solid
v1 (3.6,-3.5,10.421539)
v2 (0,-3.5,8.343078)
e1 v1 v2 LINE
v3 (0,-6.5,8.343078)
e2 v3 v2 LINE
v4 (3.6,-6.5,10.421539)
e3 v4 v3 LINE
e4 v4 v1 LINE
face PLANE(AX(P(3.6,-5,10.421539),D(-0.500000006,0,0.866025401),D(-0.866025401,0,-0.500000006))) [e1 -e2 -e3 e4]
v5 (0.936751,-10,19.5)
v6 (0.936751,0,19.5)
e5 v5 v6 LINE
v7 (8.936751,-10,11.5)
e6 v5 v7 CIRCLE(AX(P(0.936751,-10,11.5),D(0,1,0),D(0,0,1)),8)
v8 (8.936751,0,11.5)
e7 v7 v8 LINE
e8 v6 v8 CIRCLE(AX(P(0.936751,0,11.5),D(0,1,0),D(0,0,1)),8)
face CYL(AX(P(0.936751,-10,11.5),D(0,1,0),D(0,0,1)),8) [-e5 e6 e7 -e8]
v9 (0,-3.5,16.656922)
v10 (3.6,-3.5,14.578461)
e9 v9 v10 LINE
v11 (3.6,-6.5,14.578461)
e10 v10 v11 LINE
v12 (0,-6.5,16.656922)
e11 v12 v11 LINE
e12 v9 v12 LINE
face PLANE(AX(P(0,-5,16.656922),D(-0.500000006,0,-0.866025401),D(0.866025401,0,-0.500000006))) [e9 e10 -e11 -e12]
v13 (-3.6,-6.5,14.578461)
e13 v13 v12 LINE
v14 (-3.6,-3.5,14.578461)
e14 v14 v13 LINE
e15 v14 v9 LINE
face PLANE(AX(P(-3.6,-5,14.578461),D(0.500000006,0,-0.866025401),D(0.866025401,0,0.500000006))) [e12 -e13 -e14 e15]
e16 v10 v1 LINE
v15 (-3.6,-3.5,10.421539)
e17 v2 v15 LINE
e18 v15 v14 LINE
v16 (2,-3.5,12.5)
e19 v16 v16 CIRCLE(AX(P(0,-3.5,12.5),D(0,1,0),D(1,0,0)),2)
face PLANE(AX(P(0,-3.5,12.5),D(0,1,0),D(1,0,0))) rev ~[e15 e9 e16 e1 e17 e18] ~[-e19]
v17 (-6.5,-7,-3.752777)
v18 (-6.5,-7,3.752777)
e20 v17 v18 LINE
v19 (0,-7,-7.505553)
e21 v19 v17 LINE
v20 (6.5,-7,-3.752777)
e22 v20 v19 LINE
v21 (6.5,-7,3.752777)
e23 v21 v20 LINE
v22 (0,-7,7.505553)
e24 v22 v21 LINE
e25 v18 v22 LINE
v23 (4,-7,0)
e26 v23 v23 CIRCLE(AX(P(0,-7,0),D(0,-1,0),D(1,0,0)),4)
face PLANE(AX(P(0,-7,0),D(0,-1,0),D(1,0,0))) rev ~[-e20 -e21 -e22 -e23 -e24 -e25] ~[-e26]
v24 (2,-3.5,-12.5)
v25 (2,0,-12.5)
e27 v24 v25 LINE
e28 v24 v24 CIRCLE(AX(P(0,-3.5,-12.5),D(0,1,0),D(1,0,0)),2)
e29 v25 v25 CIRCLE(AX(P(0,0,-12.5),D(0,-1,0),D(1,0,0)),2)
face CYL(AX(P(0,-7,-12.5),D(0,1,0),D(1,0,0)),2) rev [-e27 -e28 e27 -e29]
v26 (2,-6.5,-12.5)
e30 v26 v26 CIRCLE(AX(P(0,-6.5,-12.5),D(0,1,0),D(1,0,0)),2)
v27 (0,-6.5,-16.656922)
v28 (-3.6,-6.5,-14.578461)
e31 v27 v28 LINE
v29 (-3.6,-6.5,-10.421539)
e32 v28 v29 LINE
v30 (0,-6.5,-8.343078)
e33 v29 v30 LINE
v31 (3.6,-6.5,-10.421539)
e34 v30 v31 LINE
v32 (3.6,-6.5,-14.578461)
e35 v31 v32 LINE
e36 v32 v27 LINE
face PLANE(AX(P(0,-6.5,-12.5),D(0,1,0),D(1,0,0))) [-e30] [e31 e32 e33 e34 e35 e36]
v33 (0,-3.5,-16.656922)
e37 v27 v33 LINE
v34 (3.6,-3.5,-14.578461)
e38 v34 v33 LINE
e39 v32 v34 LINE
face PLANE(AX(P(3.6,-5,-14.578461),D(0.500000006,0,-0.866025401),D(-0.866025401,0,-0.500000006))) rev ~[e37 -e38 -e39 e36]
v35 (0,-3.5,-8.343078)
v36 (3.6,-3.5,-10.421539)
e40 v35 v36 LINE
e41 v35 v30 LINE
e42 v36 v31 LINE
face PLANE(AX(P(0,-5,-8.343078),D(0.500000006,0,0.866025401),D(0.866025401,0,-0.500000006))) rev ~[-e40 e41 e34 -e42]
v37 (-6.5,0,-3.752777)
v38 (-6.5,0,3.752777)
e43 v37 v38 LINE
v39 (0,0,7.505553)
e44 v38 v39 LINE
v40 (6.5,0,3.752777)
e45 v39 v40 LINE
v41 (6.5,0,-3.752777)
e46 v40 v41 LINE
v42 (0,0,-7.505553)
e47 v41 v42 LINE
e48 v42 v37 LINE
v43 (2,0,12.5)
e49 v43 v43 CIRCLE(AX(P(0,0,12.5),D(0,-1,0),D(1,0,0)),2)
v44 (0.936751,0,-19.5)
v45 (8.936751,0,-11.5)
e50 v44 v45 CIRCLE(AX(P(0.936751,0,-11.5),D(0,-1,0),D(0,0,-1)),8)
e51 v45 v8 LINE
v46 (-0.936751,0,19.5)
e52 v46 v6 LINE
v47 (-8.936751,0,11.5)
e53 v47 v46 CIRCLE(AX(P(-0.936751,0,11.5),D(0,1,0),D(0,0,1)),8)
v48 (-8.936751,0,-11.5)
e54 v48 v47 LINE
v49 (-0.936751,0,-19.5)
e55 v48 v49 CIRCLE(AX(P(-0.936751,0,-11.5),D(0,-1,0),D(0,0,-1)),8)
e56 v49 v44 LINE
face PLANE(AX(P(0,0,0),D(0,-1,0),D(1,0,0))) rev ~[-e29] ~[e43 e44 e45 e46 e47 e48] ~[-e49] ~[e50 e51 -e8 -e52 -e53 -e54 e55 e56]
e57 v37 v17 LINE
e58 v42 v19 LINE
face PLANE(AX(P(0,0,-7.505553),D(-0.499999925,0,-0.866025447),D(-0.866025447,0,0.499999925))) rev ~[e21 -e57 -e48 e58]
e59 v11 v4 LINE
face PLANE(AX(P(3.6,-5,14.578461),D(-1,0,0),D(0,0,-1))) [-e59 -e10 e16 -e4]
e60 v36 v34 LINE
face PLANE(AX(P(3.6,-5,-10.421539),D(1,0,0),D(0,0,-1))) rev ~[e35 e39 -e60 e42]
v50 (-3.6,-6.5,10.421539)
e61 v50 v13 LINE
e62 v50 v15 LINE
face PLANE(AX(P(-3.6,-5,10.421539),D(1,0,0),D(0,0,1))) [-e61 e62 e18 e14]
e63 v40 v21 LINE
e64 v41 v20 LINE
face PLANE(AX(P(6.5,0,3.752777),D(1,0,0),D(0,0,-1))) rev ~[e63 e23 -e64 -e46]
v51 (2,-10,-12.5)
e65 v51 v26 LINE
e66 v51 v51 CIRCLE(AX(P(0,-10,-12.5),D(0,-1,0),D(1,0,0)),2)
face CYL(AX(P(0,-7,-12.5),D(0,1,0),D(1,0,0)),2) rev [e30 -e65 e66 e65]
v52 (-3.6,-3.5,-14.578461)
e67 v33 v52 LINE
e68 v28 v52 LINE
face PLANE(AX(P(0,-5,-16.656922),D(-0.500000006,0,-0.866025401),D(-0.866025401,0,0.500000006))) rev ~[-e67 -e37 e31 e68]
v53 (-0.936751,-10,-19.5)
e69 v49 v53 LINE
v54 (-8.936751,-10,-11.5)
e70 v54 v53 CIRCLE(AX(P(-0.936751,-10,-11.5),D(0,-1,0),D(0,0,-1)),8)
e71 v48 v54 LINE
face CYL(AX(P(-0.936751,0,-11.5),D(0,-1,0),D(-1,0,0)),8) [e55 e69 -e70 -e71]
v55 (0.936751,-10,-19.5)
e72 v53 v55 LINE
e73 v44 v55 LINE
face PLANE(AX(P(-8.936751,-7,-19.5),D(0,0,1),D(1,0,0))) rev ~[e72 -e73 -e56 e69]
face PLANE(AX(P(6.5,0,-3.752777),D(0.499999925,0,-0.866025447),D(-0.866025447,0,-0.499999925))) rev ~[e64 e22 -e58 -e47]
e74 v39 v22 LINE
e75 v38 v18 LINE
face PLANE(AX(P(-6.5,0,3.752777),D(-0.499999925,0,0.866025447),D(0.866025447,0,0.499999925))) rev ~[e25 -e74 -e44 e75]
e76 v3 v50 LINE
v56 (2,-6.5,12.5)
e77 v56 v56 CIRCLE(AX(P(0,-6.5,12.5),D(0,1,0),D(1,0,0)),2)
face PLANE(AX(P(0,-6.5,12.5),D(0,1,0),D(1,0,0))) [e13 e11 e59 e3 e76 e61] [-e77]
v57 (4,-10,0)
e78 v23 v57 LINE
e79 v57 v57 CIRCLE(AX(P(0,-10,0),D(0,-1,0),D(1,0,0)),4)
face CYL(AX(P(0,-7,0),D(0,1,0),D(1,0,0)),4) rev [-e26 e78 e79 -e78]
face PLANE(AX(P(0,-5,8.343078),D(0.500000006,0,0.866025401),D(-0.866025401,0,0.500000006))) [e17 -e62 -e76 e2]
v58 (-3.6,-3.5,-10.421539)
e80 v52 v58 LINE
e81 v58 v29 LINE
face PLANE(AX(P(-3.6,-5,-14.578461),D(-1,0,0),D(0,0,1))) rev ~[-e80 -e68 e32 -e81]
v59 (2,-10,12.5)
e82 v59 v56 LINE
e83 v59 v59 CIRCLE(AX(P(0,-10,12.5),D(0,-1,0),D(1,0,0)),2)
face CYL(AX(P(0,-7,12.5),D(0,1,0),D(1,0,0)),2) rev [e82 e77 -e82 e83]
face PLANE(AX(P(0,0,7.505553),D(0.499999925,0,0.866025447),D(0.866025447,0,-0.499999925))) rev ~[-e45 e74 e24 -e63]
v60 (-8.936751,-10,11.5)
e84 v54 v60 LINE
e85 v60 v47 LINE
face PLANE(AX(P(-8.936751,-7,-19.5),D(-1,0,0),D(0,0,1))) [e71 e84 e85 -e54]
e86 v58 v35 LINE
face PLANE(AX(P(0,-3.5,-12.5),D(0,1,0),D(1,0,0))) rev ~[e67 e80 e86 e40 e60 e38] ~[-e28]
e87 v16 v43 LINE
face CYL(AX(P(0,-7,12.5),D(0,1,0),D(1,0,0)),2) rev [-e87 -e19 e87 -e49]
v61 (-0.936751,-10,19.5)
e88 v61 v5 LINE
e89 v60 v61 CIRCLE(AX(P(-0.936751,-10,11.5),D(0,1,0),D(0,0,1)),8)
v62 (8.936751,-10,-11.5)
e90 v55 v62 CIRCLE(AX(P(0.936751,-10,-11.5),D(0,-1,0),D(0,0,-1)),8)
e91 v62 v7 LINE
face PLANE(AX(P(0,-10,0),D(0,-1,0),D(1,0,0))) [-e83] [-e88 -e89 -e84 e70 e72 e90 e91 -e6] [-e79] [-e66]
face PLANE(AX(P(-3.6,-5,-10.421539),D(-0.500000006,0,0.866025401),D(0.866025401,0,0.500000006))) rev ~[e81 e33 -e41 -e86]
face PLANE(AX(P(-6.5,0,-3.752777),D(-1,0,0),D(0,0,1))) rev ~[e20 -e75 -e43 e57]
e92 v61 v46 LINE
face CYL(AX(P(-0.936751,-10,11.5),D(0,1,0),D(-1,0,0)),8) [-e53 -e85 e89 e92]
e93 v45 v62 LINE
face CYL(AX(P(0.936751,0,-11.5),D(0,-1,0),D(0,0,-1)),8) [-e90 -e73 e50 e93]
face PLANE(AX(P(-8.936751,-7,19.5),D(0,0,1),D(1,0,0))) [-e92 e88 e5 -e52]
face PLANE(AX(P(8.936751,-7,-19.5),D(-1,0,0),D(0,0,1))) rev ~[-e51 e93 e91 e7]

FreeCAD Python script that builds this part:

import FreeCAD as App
import Part
import Sketcher
from FreeCAD import Vector
Q = App.Units.Quantity


def edges_at(feature, points):
    """Names of the edges that pass closest to the given points."""
    edges = feature.Shape.Edges
    near = lambda p: min(range(len(edges)), key=lambda i: edges[i].distToShape(Part.Vertex(*p))[0])
    return sorted({f"Edge{near(p) + 1}" for p in points})

doc = App.newDocument("Part")
body = doc.addObject("PartDesign::Body", "Body")

# Sketch on XZ plane
sketch1 = doc.addObject("Sketcher::SketchObject", "Sketch")
body.addObject(sketch1)
sketch1.AttachmentSupport = (doc.XZ_Plane, [""])
sketch1.MapMode = "FlatFace"
sketch1.addGeometry(Part.LineSegment(Vector(-8.9, 19.5, 0), Vector(-8.9, -19.5, 0)), False)
sketch1.addGeometry(Part.LineSegment(Vector(-8.9, -19.5, 0), Vector(8.9, -19.5, 0)), False)
sketch1.addGeometry(Part.LineSegment(Vector(8.9, -19.5, 0), Vector(8.9, 19.5, 0)), False)
sketch1.addGeometry(Part.LineSegment(Vector(8.9, 19.5, 0), Vector(-8.9, 19.5, 0)), False)
sketch1.addGeometry(Part.Circle(Vector(0, -12.5, 0), Vector(0, 0, 1), 2), False)
sketch1.addGeometry(Part.LineSegment(Vector(-6.5, 3.8, 0), Vector(0, 7.5, 0)), False)
sketch1.addGeometry(Part.LineSegment(Vector(0, 7.5, 0), Vector(6.5, 3.8, 0)), False)
sketch1.addGeometry(Part.LineSegment(Vector(6.5, 3.8, 0), Vector(6.5, -3.8, 0)), False)
sketch1.addGeometry(Part.LineSegment(Vector(6.5, -3.8, 0), Vector(0, -7.5, 0)), False)
sketch1.addGeometry(Part.LineSegment(Vector(0, -7.5, 0), Vector(-6.5, -3.8, 0)), False)
sketch1.addGeometry(Part.LineSegment(Vector(-6.5, -3.8, 0), Vector(-6.5, 3.8, 0)), False)
sketch1.addGeometry(Part.Circle(Vector(0, 12.5, 0), Vector(0, 0, 1), 2), False)
sketch1.addConstraint(Sketcher.Constraint("Coincident", 0, 2, 1, 1))
sketch1.addConstraint(Sketcher.Constraint("Coincident", 1, 2, 2, 1))
sketch1.addConstraint(Sketcher.Constraint("Coincident", 2, 2, 3, 1))
sketch1.addConstraint(Sketcher.Constraint("Coincident", 3, 2, 0, 1))
sketch1.addConstraint(Sketcher.Constraint("Coincident", 5, 2, 6, 1))
sketch1.addConstraint(Sketcher.Constraint("Coincident", 6, 2, 7, 1))
sketch1.addConstraint(Sketcher.Constraint("Coincident", 7, 2, 8, 1))
sketch1.addConstraint(Sketcher.Constraint("Coincident", 8, 2, 9, 1))
sketch1.addConstraint(Sketcher.Constraint("Coincident", 9, 2, 10, 1))
sketch1.addConstraint(Sketcher.Constraint("Coincident", 10, 2, 5, 1))
sketch1.addConstraint(Sketcher.Constraint("Vertical", 0))
sketch1.addConstraint(Sketcher.Constraint("Horizontal", 1))
sketch1.addConstraint(Sketcher.Constraint("Vertical", 2))
sketch1.addConstraint(Sketcher.Constraint("Horizontal", 3))
sketch1.addConstraint(Sketcher.Constraint("Vertical", 7))
sketch1.addConstraint(Sketcher.Constraint("Vertical", 10))
sketch1.addConstraint(Sketcher.Constraint("Equal", 4, 11))
sketch1.addConstraint(Sketcher.Constraint("Symmetric", 4, 3, 11, 3, -1, 1))
sketch1.addConstraint(Sketcher.Constraint("Symmetric", 0, 2, 2, 2, -1, 1))
sketch1.addConstraint(Sketcher.Constraint("Symmetric", 5, 2, 8, 2, -1, 1))
sketch1.addConstraint(Sketcher.Constraint("Symmetric", 6, 2, 9, 2, -1, 1))
sketch1.addConstraint(Sketcher.Constraint("PointOnObject", 4, 3, -2))
sketch1.addConstraint(Sketcher.Constraint("PointOnObject", 5, 2, -2))
sketch1.addConstraint(Sketcher.Constraint("Parallel", 5, 8))
sketch1.addConstraint(Sketcher.Constraint("Horizontal", 7, 2, 9, 2))
sketch1.addConstraint(Sketcher.Constraint("Diameter", 4, Q("4 mm")))
sketch1.addConstraint(Sketcher.Constraint("DistanceY", 0, 2, 0, 1, Q("39 mm")))
sketch1.addConstraint(Sketcher.Constraint("Angle", 5, Q("29.999995 deg")))
sketch1.addConstraint(Sketcher.Constraint("DistanceY", 4, 3, 11, 3, Q("25 mm")))
sketch1.addConstraint(Sketcher.Constraint("DistanceX", 9, 2, 7, 2, Q("13 mm")))
sketch1.addConstraint(Sketcher.Constraint("DistanceX", 1, 1, 1, 2, Q("17.873502 mm")))
sketch1.addConstraint(Sketcher.Constraint("DistanceY", 7, 2, 7, 1, Q("7.505554 mm")))
pad1 = doc.addObject("PartDesign::Pad", "Pad")
body.addObject(pad1)
pad1.Profile = sketch1
pad1.Length = 7

# Sketch on XZ plane
sketch2 = doc.addObject("Sketcher::SketchObject", "Sketch001")
body.addObject(sketch2)
sketch2.AttachmentSupport = (doc.XZ_Plane, [""])
sketch2.MapMode = "FlatFace"
sketch2.AttachmentOffset = App.Placement(Vector(0, 0, 7), App.Rotation())
sketch2.addGeometry(Part.LineSegment(Vector(-8.9, 19.5, 0), Vector(-8.9, -19.5, 0)), False)
sketch2.addGeometry(Part.LineSegment(Vector(-8.9, -19.5, 0), Vector(8.9, -19.5, 0)), False)
sketch2.addGeometry(Part.LineSegment(Vector(8.9, -19.5, 0), Vector(8.9, 19.5, 0)), False)
sketch2.addGeometry(Part.LineSegment(Vector(8.9, 19.5, 0), Vector(-8.9, 19.5, 0)), False)
sketch2.addGeometry(Part.Circle(Vector(0, -12.5, 0), Vector(0, 0, 1), 2), False)
sketch2.addGeometry(Part.Circle(Vector(0, 0, 0), Vector(0, 0, 1), 4), False)
sketch2.addGeometry(Part.Circle(Vector(0, 12.5, 0), Vector(0, 0, 1), 2), False)
sketch2.addConstraint(Sketcher.Constraint("Coincident", 0, 2, 1, 1))
sketch2.addConstraint(Sketcher.Constraint("Coincident", 1, 2, 2, 1))
sketch2.addConstraint(Sketcher.Constraint("Coincident", 2, 2, 3, 1))
sketch2.addConstraint(Sketcher.Constraint("Coincident", 3, 2, 0, 1))
sketch2.addConstraint(Sketcher.Constraint("Vertical", 0))
sketch2.addConstraint(Sketcher.Constraint("Horizontal", 1))
sketch2.addConstraint(Sketcher.Constraint("Vertical", 2))
sketch2.addConstraint(Sketcher.Constraint("Horizontal", 3))
sketch2.addConstraint(Sketcher.Constraint("Coincident", 5, 3, -1, 1))
sketch2.addConstraint(Sketcher.Constraint("Equal", 4, 6))
sketch2.addConstraint(Sketcher.Constraint("Symmetric", 4, 3, 6, 3, -1, 1))
sketch2.addConstraint(Sketcher.Constraint("Symmetric", 0, 2, 2, 2, -1, 1))
sketch2.addConstraint(Sketcher.Constraint("PointOnObject", 4, 3, -2))
sketch2.addConstraint(Sketcher.Constraint("Diameter", 4, Q("4 mm")))
sketch2.addConstraint(Sketcher.Constraint("Diameter", 5, Q("8 mm")))
sketch2.addConstraint(Sketcher.Constraint("DistanceY", 0, 2, 0, 1, Q("39 mm")))
sketch2.addConstraint(Sketcher.Constraint("DistanceY", 4, 3, 6, 3, Q("25 mm")))
sketch2.addConstraint(Sketcher.Constraint("DistanceX", 1, 1, 1, 2, Q("17.873502 mm")))
pad2 = doc.addObject("PartDesign::Pad", "Pad001")
body.addObject(pad2)
pad2.Profile = sketch2
pad2.Length = 3

# Sketch on XZ plane
sketch3 = doc.addObject("Sketcher::SketchObject", "Sketch002")
body.addObject(sketch3)
sketch3.AttachmentSupport = (doc.XZ_Plane, [""])
sketch3.MapMode = "FlatFace"
sketch3.AttachmentOffset = App.Placement(Vector(0, 0, 5), App.Rotation())
sketch3.addGeometry(Part.LineSegment(Vector(3.6, 14.6, 0), Vector(3.6, 10.4, 0)), False)
sketch3.addGeometry(Part.LineSegment(Vector(3.6, 10.4, 0), Vector(0, 8.3, 0)), False)
sketch3.addGeometry(Part.LineSegment(Vector(0, 8.3, 0), Vector(-3.6, 10.4, 0)), False)
sketch3.addGeometry(Part.LineSegment(Vector(-3.6, 10.4, 0), Vector(-3.6, 14.6, 0)), False)
sketch3.addGeometry(Part.LineSegment(Vector(-3.6, 14.6, 0), Vector(0, 16.7, 0)), False)
sketch3.addGeometry(Part.LineSegment(Vector(0, 16.7, 0), Vector(3.6, 14.6, 0)), False)
sketch3.addGeometry(Part.LineSegment(Vector(3.6, -10.4, 0), Vector(3.6, -14.6, 0)), False)
sketch3.addGeometry(Part.LineSegment(Vector(3.6, -14.6, 0), Vector(0, -16.7, 0)), False)
sketch3.addGeometry(Part.LineSegment(Vector(0, -16.7, 0), Vector(-3.6, -14.6, 0)), False)
sketch3.addGeometry(Part.LineSegment(Vector(-3.6, -14.6, 0), Vector(-3.6, -10.4, 0)), False)
sketch3.addGeometry(Part.LineSegment(Vector(-3.6, -10.4, 0), Vector(0, -8.3, 0)), False)
sketch3.addGeometry(Part.LineSegment(Vector(0, -8.3, 0), Vector(3.6, -10.4, 0)), False)
sketch3.addConstraint(Sketcher.Constraint("Coincident", 0, 2, 1, 1))
sketch3.addConstraint(Sketcher.Constraint("Coincident", 1, 2, 2, 1))
sketch3.addConstraint(Sketcher.Constraint("Coincident", 2, 2, 3, 1))
sketch3.addConstraint(Sketcher.Constraint("Coincident", 3, 2, 4, 1))
sketch3.addConstraint(Sketcher.Constraint("Coincident", 4, 2, 5, 1))
sketch3.addConstraint(Sketcher.Constraint("Coincident", 5, 2, 0, 1))
sketch3.addConstraint(Sketcher.Constraint("Coincident", 6, 2, 7, 1))
sketch3.addConstraint(Sketcher.Constraint("Coincident", 7, 2, 8, 1))
sketch3.addConstraint(Sketcher.Constraint("Coincident", 8, 2, 9, 1))
sketch3.addConstraint(Sketcher.Constraint("Coincident", 9, 2, 10, 1))
sketch3.addConstraint(Sketcher.Constraint("Coincident", 10, 2, 11, 1))
sketch3.addConstraint(Sketcher.Constraint("Coincident", 11, 2, 6, 1))
sketch3.addConstraint(Sketcher.Constraint("Vertical", 0))
sketch3.addConstraint(Sketcher.Constraint("Vertical", 3))
sketch3.addConstraint(Sketcher.Constraint("Vertical", 6))
sketch3.addConstraint(Sketcher.Constraint("Vertical", 9))
sketch3.addConstraint(Sketcher.Constraint("Symmetric", 3, 2, 6, 2, -1, 1))
sketch3.addConstraint(Sketcher.Constraint("Symmetric", 4, 2, 7, 2, -1, 1))
sketch3.addConstraint(Sketcher.Constraint("Symmetric", 5, 2, 8, 2, -1, 1))
sketch3.addConstraint(Sketcher.Constraint("Symmetric", 1, 2, 10, 2, -1, 1))
sketch3.addConstraint(Sketcher.Constraint("Symmetric", 0, 2, 2, 2, -2))
sketch3.addConstraint(Sketcher.Constraint("PointOnObject", 1, 2, -2))
sketch3.addConstraint(Sketcher.Constraint("PointOnObject", 4, 2, -2))
sketch3.addConstraint(Sketcher.Constraint("Parallel", 1, 4))
sketch3.addConstraint(Sketcher.Constraint("Parallel", 2, 5))
sketch3.addConstraint(Sketcher.Constraint("Parallel", 7, 10))
sketch3.addConstraint(Sketcher.Constraint("Parallel", 8, 11))
sketch3.addConstraint(Sketcher.Constraint("Angle", 1, Q("-150 deg")))
sketch3.addConstraint(Sketcher.Constraint("DistanceY", 6, 2, 0, 2, Q("25 mm")))
sketch3.addConstraint(Sketcher.Constraint("DistanceX", -1, 1, 0, 2, Q("3.6 mm")))
sketch3.addConstraint(Sketcher.Constraint("DistanceY", 0, 2, 0, 1, Q("4.156922 mm")))
pocket1 = doc.addObject("PartDesign::Pocket", "Pocket")
body.addObject(pocket1)
pocket1.Profile = sketch3
pocket1.Length = 3
pocket1.Midplane = True
doc.recompute()

fillet = doc.addObject("PartDesign::Fillet", "Fillet")
body.addObject(fillet)
fillet.Base = (pocket1, edges_at(pocket1, [
    (-8.937, -5, -19.5),
    (8.937, -5, -19.5),
    (-8.937, -5, 19.5),
    (8.937, -5, 19.5),
]))
fillet.Radius = 8

doc.recompute()
